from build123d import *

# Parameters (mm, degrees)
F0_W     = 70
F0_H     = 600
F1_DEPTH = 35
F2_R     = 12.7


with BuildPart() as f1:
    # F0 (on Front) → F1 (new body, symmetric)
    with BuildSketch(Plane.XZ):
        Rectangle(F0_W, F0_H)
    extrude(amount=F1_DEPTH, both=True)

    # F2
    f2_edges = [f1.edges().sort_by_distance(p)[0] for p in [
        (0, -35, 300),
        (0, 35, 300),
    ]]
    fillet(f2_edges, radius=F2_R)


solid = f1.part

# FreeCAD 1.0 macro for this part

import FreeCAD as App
import Part
import Sketcher


def edges_at(feature, points):
    """Names of the edges that pass closest to the given points."""
    edges = feature.Shape.Edges
    near = lambda p: min(range(len(edges)), key=lambda i: edges[i].distToShape(Part.Vertex(*p))[0])
    return sorted({f"Edge{near(p) + 1}" for p in points})

doc = App.newDocument("Part")
body = doc.addObject("PartDesign::Body", "Body")

# Sketch on XZ plane
sketch1 = body.newObject("Sketcher::SketchObject", "Sketch")
sketch1.AttachmentSupport = (doc.getObject("XZ_Plane"), [""])
sketch1.MapMode = "FlatFace"
sketch1.addGeometry([
    Part.LineSegment(App.Vector(-35, 300, 0), App.Vector(-35, -300, 0)),
    Part.LineSegment(App.Vector(-35, -300, 0), App.Vector(35, -300, 0)),
    Part.LineSegment(App.Vector(35, -300, 0), App.Vector(35, 300, 0)),
    Part.LineSegment(App.Vector(35, 300, 0), App.Vector(-35, 300, 0)),
], False)
sketch1.addConstraint([
    Sketcher.Constraint("Coincident", 0, 2, 1, 1),
    Sketcher.Constraint("Coincident", 1, 2, 2, 1),
    Sketcher.Constraint("Coincident", 2, 2, 3, 1),
    Sketcher.Constraint("Coincident", 3, 2, 0, 1),
    Sketcher.Constraint("Vertical", 0),
    Sketcher.Constraint("Horizontal", 1),
    Sketcher.Constraint("Vertical", 2),
    Sketcher.Constraint("Horizontal", 3),
    Sketcher.Constraint("Symmetric", 0, 2, 2, 2, -1, 1),
    Sketcher.Constraint("DistanceX", 1, 1, 1, 2, 70.0),
    Sketcher.Constraint("DistanceY", 0, 2, 0, 1, 600.0),
])
pad1 = body.newObject("PartDesign::Pad", "Pad")
pad1.Profile = sketch1
pad1.Length = 70
pad1.Midplane = True
doc.recompute()

fillet = body.newObject("PartDesign::Fillet", "Fillet")
fillet.Base = (pad1, edges_at(pad1, [(0, -35, 300), (0, 35, 300)]))
fillet.Radius = 12.7

doc.recompute()
